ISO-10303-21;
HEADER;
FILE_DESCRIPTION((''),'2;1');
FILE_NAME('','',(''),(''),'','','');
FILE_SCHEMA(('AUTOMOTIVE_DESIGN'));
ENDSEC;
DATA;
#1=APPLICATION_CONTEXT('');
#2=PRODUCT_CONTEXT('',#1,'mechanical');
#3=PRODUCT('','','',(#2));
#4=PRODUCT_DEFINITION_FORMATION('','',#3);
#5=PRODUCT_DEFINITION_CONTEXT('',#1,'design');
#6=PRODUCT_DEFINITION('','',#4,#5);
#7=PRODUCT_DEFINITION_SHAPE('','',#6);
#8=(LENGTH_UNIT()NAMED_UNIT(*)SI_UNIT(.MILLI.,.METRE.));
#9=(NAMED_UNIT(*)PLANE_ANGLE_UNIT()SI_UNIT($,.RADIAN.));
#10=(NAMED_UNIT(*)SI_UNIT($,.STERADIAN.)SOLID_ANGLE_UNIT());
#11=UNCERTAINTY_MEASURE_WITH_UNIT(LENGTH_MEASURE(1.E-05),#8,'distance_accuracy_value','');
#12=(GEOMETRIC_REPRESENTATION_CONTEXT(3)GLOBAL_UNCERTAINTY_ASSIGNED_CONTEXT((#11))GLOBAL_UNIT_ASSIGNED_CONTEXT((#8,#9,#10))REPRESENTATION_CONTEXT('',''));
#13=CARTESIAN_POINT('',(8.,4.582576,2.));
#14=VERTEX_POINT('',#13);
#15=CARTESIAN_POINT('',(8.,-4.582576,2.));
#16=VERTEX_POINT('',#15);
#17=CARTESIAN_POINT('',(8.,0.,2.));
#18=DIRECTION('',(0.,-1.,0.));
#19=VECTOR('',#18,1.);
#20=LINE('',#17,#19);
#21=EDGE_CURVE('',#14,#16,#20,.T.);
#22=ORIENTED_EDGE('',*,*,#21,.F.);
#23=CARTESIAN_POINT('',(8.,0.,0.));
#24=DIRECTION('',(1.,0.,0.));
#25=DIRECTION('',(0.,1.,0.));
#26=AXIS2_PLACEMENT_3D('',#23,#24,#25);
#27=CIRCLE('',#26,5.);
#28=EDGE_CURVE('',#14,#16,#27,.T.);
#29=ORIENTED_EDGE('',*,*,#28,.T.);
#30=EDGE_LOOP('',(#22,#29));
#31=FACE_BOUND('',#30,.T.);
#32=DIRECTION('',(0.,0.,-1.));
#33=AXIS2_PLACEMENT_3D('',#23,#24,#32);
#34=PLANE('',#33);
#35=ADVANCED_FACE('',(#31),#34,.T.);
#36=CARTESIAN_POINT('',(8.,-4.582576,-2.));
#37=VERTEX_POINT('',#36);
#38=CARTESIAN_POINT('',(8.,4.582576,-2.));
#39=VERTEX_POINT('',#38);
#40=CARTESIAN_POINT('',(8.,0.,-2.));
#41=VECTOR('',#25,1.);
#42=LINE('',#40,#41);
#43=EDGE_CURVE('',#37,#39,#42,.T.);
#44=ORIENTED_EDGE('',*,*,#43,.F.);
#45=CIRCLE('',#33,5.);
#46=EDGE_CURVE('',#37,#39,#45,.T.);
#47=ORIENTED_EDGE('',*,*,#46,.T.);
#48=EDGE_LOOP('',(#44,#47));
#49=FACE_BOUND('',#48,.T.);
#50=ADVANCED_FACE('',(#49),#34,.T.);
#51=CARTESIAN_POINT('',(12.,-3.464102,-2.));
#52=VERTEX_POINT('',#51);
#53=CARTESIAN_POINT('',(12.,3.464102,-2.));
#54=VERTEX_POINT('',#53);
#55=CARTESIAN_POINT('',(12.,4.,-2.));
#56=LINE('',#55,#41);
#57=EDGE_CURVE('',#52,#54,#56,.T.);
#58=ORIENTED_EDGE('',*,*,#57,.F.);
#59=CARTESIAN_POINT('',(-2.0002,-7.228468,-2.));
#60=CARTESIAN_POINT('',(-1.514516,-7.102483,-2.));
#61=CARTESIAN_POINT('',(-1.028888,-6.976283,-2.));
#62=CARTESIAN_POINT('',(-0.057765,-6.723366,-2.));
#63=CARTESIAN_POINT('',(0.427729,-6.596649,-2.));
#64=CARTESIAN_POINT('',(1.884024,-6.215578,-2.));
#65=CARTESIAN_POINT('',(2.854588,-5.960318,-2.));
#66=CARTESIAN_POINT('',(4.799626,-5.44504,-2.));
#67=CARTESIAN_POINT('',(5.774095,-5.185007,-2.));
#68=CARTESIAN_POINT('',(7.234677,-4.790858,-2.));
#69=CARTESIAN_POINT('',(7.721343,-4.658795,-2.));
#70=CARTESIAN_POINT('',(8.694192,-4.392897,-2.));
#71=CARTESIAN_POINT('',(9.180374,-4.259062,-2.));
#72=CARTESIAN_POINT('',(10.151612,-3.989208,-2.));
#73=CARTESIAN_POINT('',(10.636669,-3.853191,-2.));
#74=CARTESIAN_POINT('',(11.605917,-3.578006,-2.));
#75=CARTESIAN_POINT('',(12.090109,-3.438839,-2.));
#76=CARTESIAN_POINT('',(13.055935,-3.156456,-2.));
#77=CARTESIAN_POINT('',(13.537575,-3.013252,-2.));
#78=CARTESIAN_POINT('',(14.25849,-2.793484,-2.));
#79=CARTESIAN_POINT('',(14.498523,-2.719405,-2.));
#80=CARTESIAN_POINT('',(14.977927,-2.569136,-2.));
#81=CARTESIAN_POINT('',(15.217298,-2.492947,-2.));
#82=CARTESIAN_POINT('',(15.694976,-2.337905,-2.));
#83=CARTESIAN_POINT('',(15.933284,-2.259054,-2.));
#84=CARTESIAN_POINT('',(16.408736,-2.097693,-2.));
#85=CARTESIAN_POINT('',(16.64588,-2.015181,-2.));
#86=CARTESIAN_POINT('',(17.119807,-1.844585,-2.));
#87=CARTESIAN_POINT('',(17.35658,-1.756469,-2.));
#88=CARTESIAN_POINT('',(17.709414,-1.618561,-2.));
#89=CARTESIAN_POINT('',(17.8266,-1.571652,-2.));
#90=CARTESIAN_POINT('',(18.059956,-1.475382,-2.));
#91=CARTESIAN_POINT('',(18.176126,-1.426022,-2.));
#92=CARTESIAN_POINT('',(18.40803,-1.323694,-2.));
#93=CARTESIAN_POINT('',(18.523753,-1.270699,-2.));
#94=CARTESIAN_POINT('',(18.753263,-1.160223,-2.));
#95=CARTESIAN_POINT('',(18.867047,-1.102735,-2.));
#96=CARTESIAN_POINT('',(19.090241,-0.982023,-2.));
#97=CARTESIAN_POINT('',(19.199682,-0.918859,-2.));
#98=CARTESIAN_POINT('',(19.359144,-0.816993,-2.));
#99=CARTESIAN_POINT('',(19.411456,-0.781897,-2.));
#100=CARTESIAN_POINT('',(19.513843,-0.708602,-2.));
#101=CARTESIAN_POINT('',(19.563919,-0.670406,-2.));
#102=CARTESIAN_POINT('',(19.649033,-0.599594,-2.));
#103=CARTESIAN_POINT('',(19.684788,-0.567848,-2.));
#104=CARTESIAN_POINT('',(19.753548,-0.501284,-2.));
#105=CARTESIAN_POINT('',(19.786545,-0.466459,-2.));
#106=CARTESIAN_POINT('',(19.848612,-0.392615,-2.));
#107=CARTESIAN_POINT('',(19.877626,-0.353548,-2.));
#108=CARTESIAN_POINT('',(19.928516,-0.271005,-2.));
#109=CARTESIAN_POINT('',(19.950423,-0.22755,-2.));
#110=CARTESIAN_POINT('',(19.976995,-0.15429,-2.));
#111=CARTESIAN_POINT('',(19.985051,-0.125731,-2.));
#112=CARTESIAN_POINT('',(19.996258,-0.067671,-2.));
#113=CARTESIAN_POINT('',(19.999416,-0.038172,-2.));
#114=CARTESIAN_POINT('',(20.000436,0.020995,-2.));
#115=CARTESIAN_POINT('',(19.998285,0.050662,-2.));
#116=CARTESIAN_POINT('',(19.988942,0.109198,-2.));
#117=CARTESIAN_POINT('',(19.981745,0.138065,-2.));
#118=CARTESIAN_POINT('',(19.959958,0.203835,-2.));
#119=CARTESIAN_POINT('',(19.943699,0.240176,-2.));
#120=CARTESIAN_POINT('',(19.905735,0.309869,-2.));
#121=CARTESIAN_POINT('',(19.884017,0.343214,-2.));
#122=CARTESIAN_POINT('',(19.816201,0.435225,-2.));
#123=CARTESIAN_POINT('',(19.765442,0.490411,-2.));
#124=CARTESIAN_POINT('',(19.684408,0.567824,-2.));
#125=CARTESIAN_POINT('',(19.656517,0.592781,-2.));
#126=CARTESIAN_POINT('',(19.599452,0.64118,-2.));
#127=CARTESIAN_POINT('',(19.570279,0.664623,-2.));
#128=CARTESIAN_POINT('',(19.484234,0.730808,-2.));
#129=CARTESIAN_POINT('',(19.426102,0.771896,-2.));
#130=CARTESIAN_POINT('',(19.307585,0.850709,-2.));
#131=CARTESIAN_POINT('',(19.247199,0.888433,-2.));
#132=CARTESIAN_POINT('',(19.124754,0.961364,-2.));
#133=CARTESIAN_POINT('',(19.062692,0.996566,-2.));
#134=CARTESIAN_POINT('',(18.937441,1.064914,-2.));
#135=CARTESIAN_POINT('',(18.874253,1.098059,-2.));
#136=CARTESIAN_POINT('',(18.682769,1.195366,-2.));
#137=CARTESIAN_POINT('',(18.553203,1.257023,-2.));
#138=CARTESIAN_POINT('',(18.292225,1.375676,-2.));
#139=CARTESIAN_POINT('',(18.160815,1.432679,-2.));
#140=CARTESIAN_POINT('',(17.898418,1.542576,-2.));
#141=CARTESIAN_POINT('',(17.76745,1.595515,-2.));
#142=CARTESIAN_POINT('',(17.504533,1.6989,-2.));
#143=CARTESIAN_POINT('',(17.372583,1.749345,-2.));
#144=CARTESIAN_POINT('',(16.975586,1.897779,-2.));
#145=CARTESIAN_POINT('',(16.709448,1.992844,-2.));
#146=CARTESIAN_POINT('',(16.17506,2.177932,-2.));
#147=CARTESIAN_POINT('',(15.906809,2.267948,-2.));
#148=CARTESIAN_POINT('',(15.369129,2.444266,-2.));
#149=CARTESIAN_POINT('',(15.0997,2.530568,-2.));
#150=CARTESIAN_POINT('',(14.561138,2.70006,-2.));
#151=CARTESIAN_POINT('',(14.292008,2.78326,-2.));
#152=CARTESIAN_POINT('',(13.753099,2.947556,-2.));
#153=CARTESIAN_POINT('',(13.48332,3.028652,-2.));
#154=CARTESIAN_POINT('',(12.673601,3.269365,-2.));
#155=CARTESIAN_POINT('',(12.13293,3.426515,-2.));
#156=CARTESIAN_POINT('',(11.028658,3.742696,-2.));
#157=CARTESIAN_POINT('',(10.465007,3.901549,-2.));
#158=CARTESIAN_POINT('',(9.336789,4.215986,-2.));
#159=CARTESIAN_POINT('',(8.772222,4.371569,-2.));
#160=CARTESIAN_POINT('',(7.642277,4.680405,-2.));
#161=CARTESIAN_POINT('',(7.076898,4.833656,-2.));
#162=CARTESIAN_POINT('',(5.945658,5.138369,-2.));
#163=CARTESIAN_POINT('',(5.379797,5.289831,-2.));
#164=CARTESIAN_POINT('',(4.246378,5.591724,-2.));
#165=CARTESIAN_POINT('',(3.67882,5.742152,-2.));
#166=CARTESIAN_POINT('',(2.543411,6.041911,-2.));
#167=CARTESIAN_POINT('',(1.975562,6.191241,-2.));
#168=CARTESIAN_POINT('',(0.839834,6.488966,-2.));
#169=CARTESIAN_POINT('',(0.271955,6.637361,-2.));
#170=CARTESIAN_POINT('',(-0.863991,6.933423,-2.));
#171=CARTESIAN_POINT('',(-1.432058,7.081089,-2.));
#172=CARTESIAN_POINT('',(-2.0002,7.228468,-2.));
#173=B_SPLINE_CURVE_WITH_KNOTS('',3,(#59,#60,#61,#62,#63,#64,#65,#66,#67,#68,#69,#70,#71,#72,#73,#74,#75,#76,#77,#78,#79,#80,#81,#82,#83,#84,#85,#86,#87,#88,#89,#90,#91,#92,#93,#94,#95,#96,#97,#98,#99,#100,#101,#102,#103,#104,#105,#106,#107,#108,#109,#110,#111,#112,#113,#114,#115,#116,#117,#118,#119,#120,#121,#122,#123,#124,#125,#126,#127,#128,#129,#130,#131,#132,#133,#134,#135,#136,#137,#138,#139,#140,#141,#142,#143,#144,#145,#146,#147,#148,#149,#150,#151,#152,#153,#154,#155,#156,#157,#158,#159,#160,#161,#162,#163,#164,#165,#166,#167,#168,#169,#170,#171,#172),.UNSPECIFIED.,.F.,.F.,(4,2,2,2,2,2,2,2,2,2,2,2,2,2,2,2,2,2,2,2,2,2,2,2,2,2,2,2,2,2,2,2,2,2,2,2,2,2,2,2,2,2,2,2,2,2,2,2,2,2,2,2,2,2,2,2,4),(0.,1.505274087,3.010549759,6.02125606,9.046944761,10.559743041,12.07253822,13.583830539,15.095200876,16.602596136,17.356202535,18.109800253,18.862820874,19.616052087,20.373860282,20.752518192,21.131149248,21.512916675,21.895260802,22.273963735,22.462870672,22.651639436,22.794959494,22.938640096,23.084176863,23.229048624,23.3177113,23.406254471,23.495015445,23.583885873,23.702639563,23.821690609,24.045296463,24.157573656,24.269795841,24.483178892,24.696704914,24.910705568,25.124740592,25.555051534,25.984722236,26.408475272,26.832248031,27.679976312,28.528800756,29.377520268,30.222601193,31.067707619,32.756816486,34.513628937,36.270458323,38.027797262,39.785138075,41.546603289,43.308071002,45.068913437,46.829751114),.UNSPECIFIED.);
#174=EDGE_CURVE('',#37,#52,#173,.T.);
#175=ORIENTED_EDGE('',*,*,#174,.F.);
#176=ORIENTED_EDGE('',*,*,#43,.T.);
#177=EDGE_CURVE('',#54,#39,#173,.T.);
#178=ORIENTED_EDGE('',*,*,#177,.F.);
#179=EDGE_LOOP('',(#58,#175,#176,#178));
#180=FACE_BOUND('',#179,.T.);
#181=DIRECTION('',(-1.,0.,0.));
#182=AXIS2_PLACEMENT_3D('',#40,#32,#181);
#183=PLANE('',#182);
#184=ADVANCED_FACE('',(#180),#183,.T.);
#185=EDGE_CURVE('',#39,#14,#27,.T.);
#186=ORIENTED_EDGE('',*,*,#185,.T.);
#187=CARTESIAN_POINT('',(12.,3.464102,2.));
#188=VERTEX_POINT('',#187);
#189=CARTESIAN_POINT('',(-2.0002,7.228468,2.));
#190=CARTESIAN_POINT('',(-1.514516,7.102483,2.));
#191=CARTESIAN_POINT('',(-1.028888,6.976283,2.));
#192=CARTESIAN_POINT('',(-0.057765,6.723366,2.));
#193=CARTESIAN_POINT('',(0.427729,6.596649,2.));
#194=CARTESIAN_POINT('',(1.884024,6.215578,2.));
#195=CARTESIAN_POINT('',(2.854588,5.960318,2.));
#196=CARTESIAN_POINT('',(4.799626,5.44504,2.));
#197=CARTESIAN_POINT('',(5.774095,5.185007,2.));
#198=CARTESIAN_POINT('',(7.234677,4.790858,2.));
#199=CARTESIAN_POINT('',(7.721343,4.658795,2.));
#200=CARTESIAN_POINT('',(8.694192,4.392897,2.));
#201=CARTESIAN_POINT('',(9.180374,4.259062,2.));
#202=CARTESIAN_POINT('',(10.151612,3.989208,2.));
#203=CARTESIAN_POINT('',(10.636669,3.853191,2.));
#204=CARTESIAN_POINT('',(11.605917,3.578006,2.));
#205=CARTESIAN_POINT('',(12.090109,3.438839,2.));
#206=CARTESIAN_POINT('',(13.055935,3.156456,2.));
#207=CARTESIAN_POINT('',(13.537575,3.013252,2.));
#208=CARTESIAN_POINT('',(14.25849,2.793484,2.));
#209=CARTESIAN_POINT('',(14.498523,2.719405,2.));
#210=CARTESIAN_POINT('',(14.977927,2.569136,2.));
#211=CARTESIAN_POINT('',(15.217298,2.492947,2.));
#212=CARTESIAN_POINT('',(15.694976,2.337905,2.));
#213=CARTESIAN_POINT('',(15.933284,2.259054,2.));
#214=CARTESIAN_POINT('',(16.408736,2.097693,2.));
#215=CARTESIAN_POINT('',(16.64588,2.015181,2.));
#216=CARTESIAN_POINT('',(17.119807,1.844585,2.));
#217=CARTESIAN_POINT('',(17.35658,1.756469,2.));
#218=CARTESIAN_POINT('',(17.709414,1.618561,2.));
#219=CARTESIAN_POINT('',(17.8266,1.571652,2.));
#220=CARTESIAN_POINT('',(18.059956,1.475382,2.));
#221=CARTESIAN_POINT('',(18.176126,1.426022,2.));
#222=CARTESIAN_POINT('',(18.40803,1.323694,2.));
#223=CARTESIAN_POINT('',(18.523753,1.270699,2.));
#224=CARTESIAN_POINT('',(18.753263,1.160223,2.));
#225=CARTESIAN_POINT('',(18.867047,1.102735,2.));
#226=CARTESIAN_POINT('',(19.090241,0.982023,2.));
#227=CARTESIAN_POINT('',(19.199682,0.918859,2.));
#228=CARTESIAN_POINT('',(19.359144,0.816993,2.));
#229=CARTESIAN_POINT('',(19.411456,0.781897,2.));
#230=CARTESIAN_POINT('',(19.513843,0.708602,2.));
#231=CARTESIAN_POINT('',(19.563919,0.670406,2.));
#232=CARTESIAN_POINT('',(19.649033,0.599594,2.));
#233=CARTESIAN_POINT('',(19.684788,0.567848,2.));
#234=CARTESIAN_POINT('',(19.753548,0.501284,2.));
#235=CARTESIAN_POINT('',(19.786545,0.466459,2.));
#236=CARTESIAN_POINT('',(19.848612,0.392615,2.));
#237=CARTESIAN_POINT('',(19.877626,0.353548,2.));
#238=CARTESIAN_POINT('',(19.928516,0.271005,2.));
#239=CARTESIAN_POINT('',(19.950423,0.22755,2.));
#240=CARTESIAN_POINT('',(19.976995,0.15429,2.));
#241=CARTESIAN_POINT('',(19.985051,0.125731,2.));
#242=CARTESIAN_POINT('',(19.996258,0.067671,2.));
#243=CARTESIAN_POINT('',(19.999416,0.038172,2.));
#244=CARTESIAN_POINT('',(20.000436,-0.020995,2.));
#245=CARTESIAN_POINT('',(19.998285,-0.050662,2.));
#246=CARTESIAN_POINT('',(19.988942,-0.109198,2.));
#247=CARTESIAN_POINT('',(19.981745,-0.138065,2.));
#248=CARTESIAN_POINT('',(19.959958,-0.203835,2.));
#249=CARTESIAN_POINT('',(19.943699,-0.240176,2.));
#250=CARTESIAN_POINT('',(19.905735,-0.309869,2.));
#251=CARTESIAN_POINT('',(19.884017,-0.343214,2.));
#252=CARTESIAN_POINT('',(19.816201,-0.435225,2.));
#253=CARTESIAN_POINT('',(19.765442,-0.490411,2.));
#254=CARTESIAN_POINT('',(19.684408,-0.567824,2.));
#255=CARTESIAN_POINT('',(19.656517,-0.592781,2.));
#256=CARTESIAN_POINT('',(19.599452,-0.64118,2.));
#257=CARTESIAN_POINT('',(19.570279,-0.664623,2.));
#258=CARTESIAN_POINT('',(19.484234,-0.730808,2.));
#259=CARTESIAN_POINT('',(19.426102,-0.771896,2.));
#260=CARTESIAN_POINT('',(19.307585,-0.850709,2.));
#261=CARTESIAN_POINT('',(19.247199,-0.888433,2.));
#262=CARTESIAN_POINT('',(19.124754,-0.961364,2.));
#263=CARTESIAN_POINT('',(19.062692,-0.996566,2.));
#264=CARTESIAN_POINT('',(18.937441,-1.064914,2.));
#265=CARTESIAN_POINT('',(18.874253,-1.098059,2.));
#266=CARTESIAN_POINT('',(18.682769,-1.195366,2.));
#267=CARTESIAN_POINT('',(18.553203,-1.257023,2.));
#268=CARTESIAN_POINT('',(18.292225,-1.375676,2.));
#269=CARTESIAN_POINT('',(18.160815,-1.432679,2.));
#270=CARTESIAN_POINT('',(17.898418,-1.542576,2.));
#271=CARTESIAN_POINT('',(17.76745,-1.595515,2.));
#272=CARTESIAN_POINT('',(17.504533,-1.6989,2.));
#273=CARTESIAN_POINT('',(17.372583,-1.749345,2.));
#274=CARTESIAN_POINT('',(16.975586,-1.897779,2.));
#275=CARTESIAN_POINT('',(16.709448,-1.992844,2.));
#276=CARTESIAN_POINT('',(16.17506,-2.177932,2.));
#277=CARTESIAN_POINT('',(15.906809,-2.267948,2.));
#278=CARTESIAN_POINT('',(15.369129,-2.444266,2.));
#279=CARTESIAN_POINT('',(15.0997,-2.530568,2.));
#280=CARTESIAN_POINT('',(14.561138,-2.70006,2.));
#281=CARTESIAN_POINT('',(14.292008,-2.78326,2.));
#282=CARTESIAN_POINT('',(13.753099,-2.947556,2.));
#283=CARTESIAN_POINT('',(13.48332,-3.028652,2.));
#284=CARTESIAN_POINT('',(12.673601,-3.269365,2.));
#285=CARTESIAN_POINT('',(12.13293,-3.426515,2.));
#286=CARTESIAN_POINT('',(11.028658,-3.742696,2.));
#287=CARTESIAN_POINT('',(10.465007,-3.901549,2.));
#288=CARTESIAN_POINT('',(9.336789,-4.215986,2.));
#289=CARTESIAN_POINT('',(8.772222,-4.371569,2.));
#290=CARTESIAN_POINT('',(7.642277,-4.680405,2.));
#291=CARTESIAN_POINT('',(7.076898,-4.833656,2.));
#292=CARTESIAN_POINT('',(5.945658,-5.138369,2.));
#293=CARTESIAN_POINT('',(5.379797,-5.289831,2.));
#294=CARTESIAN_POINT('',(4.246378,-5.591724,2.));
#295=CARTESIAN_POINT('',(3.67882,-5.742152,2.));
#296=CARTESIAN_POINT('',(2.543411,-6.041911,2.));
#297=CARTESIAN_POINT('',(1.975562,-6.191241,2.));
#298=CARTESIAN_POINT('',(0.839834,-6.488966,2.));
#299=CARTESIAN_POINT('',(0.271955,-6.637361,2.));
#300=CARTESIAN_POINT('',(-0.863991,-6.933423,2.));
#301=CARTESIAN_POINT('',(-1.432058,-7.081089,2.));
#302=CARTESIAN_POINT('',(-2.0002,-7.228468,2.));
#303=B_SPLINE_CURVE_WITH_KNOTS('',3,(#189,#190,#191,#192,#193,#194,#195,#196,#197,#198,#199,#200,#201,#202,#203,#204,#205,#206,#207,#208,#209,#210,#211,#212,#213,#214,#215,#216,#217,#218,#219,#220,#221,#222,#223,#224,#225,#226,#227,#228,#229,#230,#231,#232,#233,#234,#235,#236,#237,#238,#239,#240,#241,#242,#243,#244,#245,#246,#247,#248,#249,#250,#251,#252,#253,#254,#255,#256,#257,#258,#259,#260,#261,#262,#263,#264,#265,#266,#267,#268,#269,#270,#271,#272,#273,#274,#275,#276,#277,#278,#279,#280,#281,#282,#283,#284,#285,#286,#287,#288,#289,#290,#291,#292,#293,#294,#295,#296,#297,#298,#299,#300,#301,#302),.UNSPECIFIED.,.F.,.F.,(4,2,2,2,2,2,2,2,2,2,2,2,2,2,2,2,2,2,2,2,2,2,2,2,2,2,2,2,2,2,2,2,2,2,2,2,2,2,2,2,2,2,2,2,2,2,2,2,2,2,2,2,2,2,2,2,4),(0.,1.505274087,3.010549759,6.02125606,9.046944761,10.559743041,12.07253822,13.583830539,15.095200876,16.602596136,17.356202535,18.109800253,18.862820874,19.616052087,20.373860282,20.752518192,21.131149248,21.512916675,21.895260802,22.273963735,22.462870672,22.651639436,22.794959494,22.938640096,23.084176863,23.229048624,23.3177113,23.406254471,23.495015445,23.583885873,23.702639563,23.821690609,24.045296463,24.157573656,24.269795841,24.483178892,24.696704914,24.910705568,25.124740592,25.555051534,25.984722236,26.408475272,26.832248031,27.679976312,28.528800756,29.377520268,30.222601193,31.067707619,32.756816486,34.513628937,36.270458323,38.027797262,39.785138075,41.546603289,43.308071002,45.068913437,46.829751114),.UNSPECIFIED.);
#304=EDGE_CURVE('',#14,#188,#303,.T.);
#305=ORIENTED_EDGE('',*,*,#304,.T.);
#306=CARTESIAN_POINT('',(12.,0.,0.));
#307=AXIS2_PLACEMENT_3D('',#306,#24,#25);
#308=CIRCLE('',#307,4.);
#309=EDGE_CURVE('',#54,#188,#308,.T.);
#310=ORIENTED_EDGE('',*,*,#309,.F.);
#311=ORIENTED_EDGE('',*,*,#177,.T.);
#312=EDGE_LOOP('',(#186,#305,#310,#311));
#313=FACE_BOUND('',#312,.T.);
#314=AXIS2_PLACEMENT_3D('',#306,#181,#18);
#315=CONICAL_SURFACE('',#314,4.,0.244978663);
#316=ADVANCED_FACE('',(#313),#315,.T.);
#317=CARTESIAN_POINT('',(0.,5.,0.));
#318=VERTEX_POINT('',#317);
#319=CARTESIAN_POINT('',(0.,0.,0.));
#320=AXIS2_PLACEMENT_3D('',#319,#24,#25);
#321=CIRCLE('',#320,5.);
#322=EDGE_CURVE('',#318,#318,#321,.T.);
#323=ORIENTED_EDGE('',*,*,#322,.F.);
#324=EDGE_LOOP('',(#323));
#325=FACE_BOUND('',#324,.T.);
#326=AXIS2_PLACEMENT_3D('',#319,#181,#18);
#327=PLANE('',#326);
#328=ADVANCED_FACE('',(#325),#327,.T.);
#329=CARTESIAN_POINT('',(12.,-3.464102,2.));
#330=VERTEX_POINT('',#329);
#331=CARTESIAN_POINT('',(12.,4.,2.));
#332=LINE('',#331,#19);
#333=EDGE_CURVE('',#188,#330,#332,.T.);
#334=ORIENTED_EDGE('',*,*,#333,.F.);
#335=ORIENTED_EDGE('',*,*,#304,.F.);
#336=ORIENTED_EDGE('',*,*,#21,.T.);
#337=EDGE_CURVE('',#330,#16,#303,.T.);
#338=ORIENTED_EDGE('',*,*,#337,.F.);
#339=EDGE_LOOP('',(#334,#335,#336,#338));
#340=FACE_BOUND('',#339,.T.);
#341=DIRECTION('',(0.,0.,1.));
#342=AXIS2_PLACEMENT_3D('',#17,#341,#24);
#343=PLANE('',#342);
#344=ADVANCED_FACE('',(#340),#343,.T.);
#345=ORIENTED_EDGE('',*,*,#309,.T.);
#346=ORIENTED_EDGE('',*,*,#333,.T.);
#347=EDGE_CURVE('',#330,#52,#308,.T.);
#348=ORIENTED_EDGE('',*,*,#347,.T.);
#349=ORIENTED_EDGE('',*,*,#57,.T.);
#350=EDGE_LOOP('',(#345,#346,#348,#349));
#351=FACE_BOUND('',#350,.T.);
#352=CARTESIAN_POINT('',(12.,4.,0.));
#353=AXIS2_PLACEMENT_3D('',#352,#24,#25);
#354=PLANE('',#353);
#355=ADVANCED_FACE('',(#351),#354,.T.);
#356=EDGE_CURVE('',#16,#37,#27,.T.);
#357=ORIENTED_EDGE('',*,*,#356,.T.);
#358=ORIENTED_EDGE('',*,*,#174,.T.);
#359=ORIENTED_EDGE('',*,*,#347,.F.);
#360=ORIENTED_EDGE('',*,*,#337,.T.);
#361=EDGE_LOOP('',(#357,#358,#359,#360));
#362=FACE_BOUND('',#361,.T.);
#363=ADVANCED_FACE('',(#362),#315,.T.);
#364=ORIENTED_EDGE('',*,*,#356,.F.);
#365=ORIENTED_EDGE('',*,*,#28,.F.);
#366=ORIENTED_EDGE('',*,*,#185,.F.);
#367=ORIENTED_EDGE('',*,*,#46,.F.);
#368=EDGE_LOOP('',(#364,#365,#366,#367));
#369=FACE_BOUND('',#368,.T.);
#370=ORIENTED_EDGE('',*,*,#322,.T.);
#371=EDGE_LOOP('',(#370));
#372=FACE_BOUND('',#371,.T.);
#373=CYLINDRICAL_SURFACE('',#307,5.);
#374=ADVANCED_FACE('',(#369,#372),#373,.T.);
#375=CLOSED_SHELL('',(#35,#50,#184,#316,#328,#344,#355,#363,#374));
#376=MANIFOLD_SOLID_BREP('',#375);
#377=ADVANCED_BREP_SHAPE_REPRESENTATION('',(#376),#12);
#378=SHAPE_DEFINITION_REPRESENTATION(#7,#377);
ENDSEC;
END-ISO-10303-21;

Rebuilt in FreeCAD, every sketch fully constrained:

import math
import FreeCAD as App
import Part
import Sketcher
Q = App.Units.Quantity

doc = App.newDocument("Part")
body = doc.addObject("PartDesign::Body", "Body")

sketch1 = body.newObject("Sketcher::SketchObject", "Sketch")
sketch1.AttachmentSupport = (doc.getObject("XY_Plane"), [""])
sketch1.MapMode = "FlatFace"
sketch1.addGeometry([
    Part.LineSegment(App.Vector(0, 5, 0), App.Vector(0, 0, 0)),
    Part.LineSegment(App.Vector(0, 0, 0), App.Vector(12, 0, 0)),
    Part.LineSegment(App.Vector(12, 0, 0), App.Vector(12, 4, 0)),
    Part.LineSegment(App.Vector(12, 4, 0), App.Vector(8, 5, 0)),
    Part.LineSegment(App.Vector(8, 5, 0), App.Vector(0, 5, 0)),
], False)
sketch1.addConstraint([
    Sketcher.Constraint("Coincident", 0, 2, 1, 1),
    Sketcher.Constraint("Coincident", 1, 2, 2, 1),
    Sketcher.Constraint("Coincident", 2, 2, 3, 1),
    Sketcher.Constraint("Coincident", 3, 2, 4, 1),
    Sketcher.Constraint("Coincident", 4, 2, 0, 1),
    Sketcher.Constraint("Vertical", 0),
    Sketcher.Constraint("Horizontal", 1),
    Sketcher.Constraint("Vertical", 2),
    Sketcher.Constraint("Horizontal", 4),
    Sketcher.Constraint("Coincident", 0, 2, -1, 1),
    Sketcher.Constraint("DistanceX", 1, 1, 1, 2, Q("12 mm")),
    Sketcher.Constraint("DistanceX", 4, 2, 4, 1, Q("8 mm")),
    Sketcher.Constraint("DistanceY", 0, 2, 0, 1, Q("5 mm")),
    Sketcher.Constraint("DistanceY", 2, 1, 2, 2, Q("4 mm")),
])
revolution = body.newObject("PartDesign::Revolution", "Revolution")
revolution.Profile = sketch1
revolution.ReferenceAxis = (sketch1, ["H_Axis"])
revolution.Angle = 360

sketch2 = body.newObject("Sketcher::SketchObject", "Sketch001")
sketch2.AttachmentSupport = (doc.getObject("YZ_Plane"), [""])
sketch2.MapMode = "FlatFace"
sketch2.AttachmentOffset = App.Placement(App.Vector(0, 0, 12), App.Rotation())
sketch2.addGeometry([
    Part.ArcOfCircle(Part.Circle(App.Vector(0, 0, 0), App.Vector(0, 0, 1), 5), math.radians(24), math.radians(156)),
    Part.LineSegment(App.Vector(-4.6, 2, 0), App.Vector(4.6, 2, 0)),
    Part.ArcOfCircle(Part.Circle(App.Vector(0, 0, 0), App.Vector(0, 0, 1), 5), math.radians(-156), math.radians(-90)),
    Part.ArcOfCircle(Part.Circle(App.Vector(0, 0, 0), App.Vector(0, 0, 1), 5), math.radians(-90), math.radians(-24)),
    Part.LineSegment(App.Vector(4.6, -2, 0), App.Vector(-4.6, -2, 0)),
], False)
sketch2.addConstraint([
    Sketcher.Constraint("Coincident", 0, 1, 1, 2),
    Sketcher.Constraint("Coincident", 1, 1, 0, 2),
    Sketcher.Constraint("Tangent", 2, 2, 3, 1),
    Sketcher.Constraint("Coincident", 3, 2, 4, 1),
    Sketcher.Constraint("Coincident", 4, 2, 2, 1),
    Sketcher.Constraint("Horizontal", 1),
    Sketcher.Constraint("Horizontal", 4),
    Sketcher.Constraint("Coincident", 0, 3, -1, 1),
    Sketcher.Constraint("Coincident", 2, 3, -1, 1),
    Sketcher.Constraint("Equal", 0, 2),
    Sketcher.Constraint("Equal", 2, 3),
    Sketcher.Constraint("PointOnObject", 2, 2, -2),
    Sketcher.Constraint("Vertical", 0, 1, 3, 2),
    Sketcher.Constraint("Radius", 0, Q("5 mm")),
    Sketcher.Constraint("DistanceY", -1, 1, 0, 1, Q("2 mm")),
])
pocket1 = body.newObject("PartDesign::Pocket", "Pocket")
pocket1.Profile = sketch2
pocket1.Length = 4

doc.recompute()
